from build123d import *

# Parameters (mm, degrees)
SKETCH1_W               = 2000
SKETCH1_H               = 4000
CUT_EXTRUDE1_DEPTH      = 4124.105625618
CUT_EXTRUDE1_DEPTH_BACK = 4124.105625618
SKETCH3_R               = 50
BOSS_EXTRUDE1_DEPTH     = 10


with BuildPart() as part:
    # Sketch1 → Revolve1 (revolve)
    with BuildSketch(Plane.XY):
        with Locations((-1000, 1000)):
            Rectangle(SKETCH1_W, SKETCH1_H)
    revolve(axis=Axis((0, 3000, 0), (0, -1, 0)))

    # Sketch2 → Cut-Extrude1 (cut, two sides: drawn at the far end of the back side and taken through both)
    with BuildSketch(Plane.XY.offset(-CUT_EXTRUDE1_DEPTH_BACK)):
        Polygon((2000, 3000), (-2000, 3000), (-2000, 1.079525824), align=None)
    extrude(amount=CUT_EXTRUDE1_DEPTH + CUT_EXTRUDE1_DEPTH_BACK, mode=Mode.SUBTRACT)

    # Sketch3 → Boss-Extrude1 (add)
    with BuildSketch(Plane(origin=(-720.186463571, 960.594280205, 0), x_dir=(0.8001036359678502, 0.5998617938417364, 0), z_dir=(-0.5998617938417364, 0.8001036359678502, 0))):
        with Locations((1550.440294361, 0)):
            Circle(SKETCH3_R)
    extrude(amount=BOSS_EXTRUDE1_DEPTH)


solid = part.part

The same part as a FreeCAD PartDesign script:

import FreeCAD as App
import Part
import Sketcher

V = App.Vector
Q = App.Units.Quantity

doc = App.newDocument("Part")
body = doc.addObject("PartDesign::Body", "Body")

# Sketch on XY plane
sketch1 = body.newObject("Sketcher::SketchObject", "Sketch")
sketch1.AttachmentSupport = (doc.getObject("XY_Plane"), [""])
sketch1.MapMode = "FlatFace"
sketch1.addGeometry(Part.LineSegment(V(-2000, 3000, 0), V(-2000, -1000, 0)), False)
sketch1.addGeometry(Part.LineSegment(V(-2000, -1000, 0), V(0, -1000, 0)), False)
sketch1.addGeometry(Part.LineSegment(V(0, -1000, 0), V(0, 3000, 0)), False)
sketch1.addGeometry(Part.LineSegment(V(0, 3000, 0), V(-2000, 3000, 0)), False)
sketch1.addConstraint(Sketcher.Constraint("Coincident", 0, 2, 1, 1))
sketch1.addConstraint(Sketcher.Constraint("Coincident", 1, 2, 2, 1))
sketch1.addConstraint(Sketcher.Constraint("Coincident", 2, 2, 3, 1))
sketch1.addConstraint(Sketcher.Constraint("Coincident", 3, 2, 0, 1))
sketch1.addConstraint(Sketcher.Constraint("Vertical", 0))
sketch1.addConstraint(Sketcher.Constraint("Horizontal", 1))
sketch1.addConstraint(Sketcher.Constraint("Vertical", 2))
sketch1.addConstraint(Sketcher.Constraint("Horizontal", 3))
sketch1.addConstraint(Sketcher.Constraint("PointOnObject", 1, 2, -2))
sketch1.addConstraint(Sketcher.Constraint("DistanceX", 1, 1, 1, 2, 2000.0))
sketch1.addConstraint(Sketcher.Constraint("DistanceY", 0, 2, 0, 1, 4000.0))
sketch1.addConstraint(Sketcher.Constraint("DistanceY", 0, 2, -1, 1, 1000.0))
revolution = body.newObject("PartDesign::Revolution", "Revolution")
revolution.Profile = sketch1
revolution.ReferenceAxis = (sketch1, ["V_Axis"])
revolution.Angle = 360

# Sketch on XY plane
sketch2 = body.newObject("Sketcher::SketchObject", "Sketch001")
sketch2.AttachmentSupport = (doc.getObject("XY_Plane"), [""])
sketch2.MapMode = "FlatFace"
sketch2.addGeometry(Part.LineSegment(V(2000, 3000, 0), V(-2000, 3000, 0)), False)
sketch2.addGeometry(Part.LineSegment(V(-2000, 3000, 0), V(-2000, 1, 0)), False)
sketch2.addGeometry(Part.LineSegment(V(-2000, 1, 0), V(2000, 3000, 0)), False)
sketch2.addConstraint(Sketcher.Constraint("Coincident", 0, 2, 1, 1))
sketch2.addConstraint(Sketcher.Constraint("Coincident", 1, 2, 2, 1))
sketch2.addConstraint(Sketcher.Constraint("Coincident", 2, 2, 0, 1))
sketch2.addConstraint(Sketcher.Constraint("Horizontal", 0))
sketch2.addConstraint(Sketcher.Constraint("Vertical", 1))
sketch2.addConstraint(Sketcher.Constraint("DistanceX", 0, 2, 0, 1, 4000.0))
sketch2.addConstraint(Sketcher.Constraint("DistanceX", 0, 2, -1, 1, 2000.0))
sketch2.addConstraint(Sketcher.Constraint("DistanceY", -1, 1, 0, 2, 3000.0))
sketch2.addConstraint(Sketcher.Constraint("Angle", 2, Q("36.86 deg")))
pocket1 = body.newObject("PartDesign::Pocket", "Pocket")
pocket1.Profile = sketch2
pocket1.Type = "ThroughAll"
pocket1.Midplane = True

# Sketch on an angled plane
sketch3 = body.newObject("Sketcher::SketchObject", "Sketch002")
sketch3.Placement = App.Placement(V(-720.186464, 960.59428, 0), App.Rotation(V(0.800103636, 0.599861794, 0), V(0, 0, -1), V(-0.599861794, 0.800103636, 0), "ZXY"))
sketch3.addGeometry(Part.Circle(V(1550, 0, 0), V(0, 0, 1), 50), False)
sketch3.addConstraint(Sketcher.Constraint("PointOnObject", 0, 3, -1))
sketch3.addConstraint(Sketcher.Constraint("Diameter", 0, 100.0))
sketch3.addConstraint(Sketcher.Constraint("DistanceX", -1, 1, 0, 3, 1550.440295))
pad1 = body.newObject("PartDesign::Pad", "Pad")
pad1.Profile = sketch3
pad1.Length = 10

doc.recompute()
